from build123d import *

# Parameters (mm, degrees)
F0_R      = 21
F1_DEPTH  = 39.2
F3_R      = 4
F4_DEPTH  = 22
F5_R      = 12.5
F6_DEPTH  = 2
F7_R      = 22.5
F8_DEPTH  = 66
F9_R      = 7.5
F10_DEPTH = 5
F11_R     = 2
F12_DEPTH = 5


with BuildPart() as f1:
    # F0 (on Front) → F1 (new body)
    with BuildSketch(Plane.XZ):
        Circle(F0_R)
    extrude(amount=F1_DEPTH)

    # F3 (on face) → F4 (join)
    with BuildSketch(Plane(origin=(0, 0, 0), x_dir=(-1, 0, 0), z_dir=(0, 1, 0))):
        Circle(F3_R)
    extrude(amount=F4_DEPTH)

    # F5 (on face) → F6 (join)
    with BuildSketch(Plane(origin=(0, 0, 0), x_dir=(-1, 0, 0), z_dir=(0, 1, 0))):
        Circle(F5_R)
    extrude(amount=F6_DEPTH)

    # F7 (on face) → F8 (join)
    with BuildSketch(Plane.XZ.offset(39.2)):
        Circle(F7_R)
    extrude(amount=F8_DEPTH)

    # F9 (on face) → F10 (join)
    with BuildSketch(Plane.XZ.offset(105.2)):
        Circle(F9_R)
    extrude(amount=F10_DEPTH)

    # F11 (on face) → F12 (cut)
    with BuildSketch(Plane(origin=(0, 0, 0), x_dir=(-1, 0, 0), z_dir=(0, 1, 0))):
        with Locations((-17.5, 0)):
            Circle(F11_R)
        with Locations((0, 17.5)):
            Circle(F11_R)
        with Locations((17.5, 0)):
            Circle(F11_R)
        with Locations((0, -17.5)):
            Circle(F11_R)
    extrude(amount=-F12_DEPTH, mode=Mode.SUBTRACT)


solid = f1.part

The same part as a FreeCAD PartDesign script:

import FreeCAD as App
import Part
import Sketcher

doc = App.newDocument("Part")
body = doc.addObject("PartDesign::Body", "Body")

sketch1 = body.newObject("Sketcher::SketchObject", "Sketch")
sketch1.AttachmentSupport = (doc.getObject("XZ_Plane"), [""])
sketch1.MapMode = "FlatFace"
sketch1.addGeometry(Part.Circle(App.Vector(0, 0, 0), App.Vector(0, 0, 1), 21), False)
sketch1.addConstraint(Sketcher.Constraint("Coincident", 0, 3, -1, 1))
sketch1.addConstraint(Sketcher.Constraint("Diameter", 0, 42.0))
pad1 = body.newObject("PartDesign::Pad", "Pad")
pad1.Profile = sketch1
pad1.Length = 39.2

sketch2 = body.newObject("Sketcher::SketchObject", "Sketch001")
sketch2.AttachmentSupport = (doc.getObject("XZ_Plane"), [""])
sketch2.MapMode = "FlatFace"
sketch2.addGeometry(Part.Circle(App.Vector(0, 0, 0), App.Vector(0, 0, 1), 4), False)
sketch2.addConstraint(Sketcher.Constraint("Coincident", 0, 3, -1, 1))
sketch2.addConstraint(Sketcher.Constraint("Diameter", 0, 8.0))
pad2 = body.newObject("PartDesign::Pad", "Pad001")
pad2.Profile = sketch2
pad2.Length = 22
pad2.Reversed = True

sketch3 = body.newObject("Sketcher::SketchObject", "Sketch002")
sketch3.AttachmentSupport = (doc.getObject("XZ_Plane"), [""])
sketch3.MapMode = "FlatFace"
sketch3.addGeometry(Part.Circle(App.Vector(0, 0, 0), App.Vector(0, 0, 1), 12), False)
sketch3.addConstraint(Sketcher.Constraint("Coincident", 0, 3, -1, 1))
sketch3.addConstraint(Sketcher.Constraint("Diameter", 0, 25.0))
pad3 = body.newObject("PartDesign::Pad", "Pad002")
pad3.Profile = sketch3
pad3.Length = 2
pad3.Reversed = True

sketch4 = body.newObject("Sketcher::SketchObject", "Sketch003")
sketch4.AttachmentSupport = (doc.getObject("XZ_Plane"), [""])
sketch4.MapMode = "FlatFace"
sketch4.AttachmentOffset = App.Placement(App.Vector(0, 0, 39.2), App.Rotation())
sketch4.addGeometry(Part.Circle(App.Vector(0, 0, 0), App.Vector(0, 0, 1), 22), False)
sketch4.addConstraint(Sketcher.Constraint("Coincident", 0, 3, -1, 1))
sketch4.addConstraint(Sketcher.Constraint("Diameter", 0, 45.0))
pad4 = body.newObject("PartDesign::Pad", "Pad003")
pad4.Profile = sketch4
pad4.Length = 66

sketch5 = body.newObject("Sketcher::SketchObject", "Sketch004")
sketch5.AttachmentSupport = (doc.getObject("XZ_Plane"), [""])
sketch5.MapMode = "FlatFace"
sketch5.AttachmentOffset = App.Placement(App.Vector(0, 0, 105.2), App.Rotation())
sketch5.addGeometry(Part.Circle(App.Vector(0, 0, 0), App.Vector(0, 0, 1), 8), False)
sketch5.addConstraint(Sketcher.Constraint("Coincident", 0, 3, -1, 1))
sketch5.addConstraint(Sketcher.Constraint("Diameter", 0, 15.0))
pad5 = body.newObject("PartDesign::Pad", "Pad004")
pad5.Profile = sketch5
pad5.Length = 5

sketch6 = body.newObject("Sketcher::SketchObject", "Sketch005")
sketch6.AttachmentSupport = (doc.getObject("XZ_Plane"), [""])
sketch6.MapMode = "FlatFace"
sketch6.addGeometry(Part.Circle(App.Vector(17.5, 0, 0), App.Vector(0, 0, 1), 2), False)
sketch6.addGeometry(Part.Circle(App.Vector(0, 17.5, 0), App.Vector(0, 0, 1), 2), False)
sketch6.addGeometry(Part.Circle(App.Vector(-17.5, 0, 0), App.Vector(0, 0, 1), 2), False)
sketch6.addGeometry(Part.Circle(App.Vector(0, -17.5, 0), App.Vector(0, 0, 1), 2), False)
sketch6.addConstraint(Sketcher.Constraint("Equal", 0, 1))
sketch6.addConstraint(Sketcher.Constraint("Equal", 1, 2))
sketch6.addConstraint(Sketcher.Constraint("Equal", 2, 3))
sketch6.addConstraint(Sketcher.Constraint("Symmetric", 0, 3, 2, 3, -1, 1))
sketch6.addConstraint(Sketcher.Constraint("Symmetric", 1, 3, 3, 3, -1, 1))
sketch6.addConstraint(Sketcher.Constraint("PointOnObject", 0, 3, -1))
sketch6.addConstraint(Sketcher.Constraint("PointOnObject", 1, 3, -2))
sketch6.addConstraint(Sketcher.Constraint("Diameter", 0, 4.0))
sketch6.addConstraint(Sketcher.Constraint("DistanceX", 2, 3, 0, 3, 35.0))
sketch6.addConstraint(Sketcher.Constraint("DistanceY", 3, 3, 1, 3, 35.0))
pocket1 = body.newObject("PartDesign::Pocket", "Pocket")
pocket1.Profile = sketch6
pocket1.Length = 5
pocket1.Reversed = True

doc.recompute()
